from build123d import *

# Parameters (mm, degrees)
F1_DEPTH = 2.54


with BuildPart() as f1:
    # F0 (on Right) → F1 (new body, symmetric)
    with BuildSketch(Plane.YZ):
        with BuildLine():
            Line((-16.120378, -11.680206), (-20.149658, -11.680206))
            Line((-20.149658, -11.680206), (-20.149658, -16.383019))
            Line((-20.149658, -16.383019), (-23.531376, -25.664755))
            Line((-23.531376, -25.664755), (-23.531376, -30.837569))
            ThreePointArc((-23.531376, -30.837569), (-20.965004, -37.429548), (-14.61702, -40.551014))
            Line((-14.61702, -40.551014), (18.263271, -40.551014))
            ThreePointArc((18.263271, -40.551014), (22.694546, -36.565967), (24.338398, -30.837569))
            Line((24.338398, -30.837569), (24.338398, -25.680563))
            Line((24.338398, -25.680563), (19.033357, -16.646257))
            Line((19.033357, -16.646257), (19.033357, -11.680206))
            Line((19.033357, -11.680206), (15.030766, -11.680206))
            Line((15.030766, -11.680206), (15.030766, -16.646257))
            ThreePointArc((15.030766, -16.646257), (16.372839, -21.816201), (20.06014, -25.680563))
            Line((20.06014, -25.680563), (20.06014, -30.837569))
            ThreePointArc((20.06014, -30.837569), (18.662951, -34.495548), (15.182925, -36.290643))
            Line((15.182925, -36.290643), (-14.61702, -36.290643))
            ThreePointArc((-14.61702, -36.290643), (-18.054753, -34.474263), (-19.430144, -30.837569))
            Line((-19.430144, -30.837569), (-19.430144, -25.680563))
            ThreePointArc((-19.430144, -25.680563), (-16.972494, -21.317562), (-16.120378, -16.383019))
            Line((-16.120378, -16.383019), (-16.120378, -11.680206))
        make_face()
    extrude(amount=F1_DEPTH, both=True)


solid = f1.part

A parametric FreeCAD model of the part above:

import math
import FreeCAD as App
import Part
import Sketcher

V = App.Vector
Q = App.Units.Quantity

doc = App.newDocument("Part")
body = doc.addObject("PartDesign::Body", "Body")

# Sketch on YZ plane
sketch1 = body.newObject("Sketcher::SketchObject", "Sketch")
sketch1.AttachmentSupport = (doc.getObject("YZ_Plane"), [""])
sketch1.MapMode = "FlatFace"
sketch1.addGeometry(Part.LineSegment(V(-16.1, -11.7, 0), V(-20.1, -11.7, 0)), False)
sketch1.addGeometry(Part.LineSegment(V(-20.1, -11.7, 0), V(-20.1, -16.4, 0)), False)
sketch1.addGeometry(Part.LineSegment(V(-20.1, -16.4, 0), V(-23.5, -25.7, 0)), False)
sketch1.addGeometry(Part.LineSegment(V(-23.5, -25.7, 0), V(-23.5, -30.8, 0)), False)
sketch1.addGeometry(Part.ArcOfCircle(Part.Circle(V(-13.8, -30.8, 0), V(0, 0, 1), 9.7), math.radians(-180), math.radians(-95)), False)
sketch1.addGeometry(Part.LineSegment(V(-14.6, -40.6, 0), V(18.3, -40.6, 0)), False)
sketch1.addGeometry(Part.ArcOfCircle(Part.Circle(V(13.5, -30.8, 0), V(0, 0, 1), 10.8), math.radians(-64), math.radians(0)), False)
sketch1.addGeometry(Part.LineSegment(V(24.3, -30.8, 0), V(24.3, -25.7, 0)), False)
sketch1.addGeometry(Part.LineSegment(V(24.3, -25.7, 0), V(19, -16.6, 0)), False)
sketch1.addGeometry(Part.LineSegment(V(19, -16.6, 0), V(19, -11.7, 0)), False)
sketch1.addGeometry(Part.LineSegment(V(19, -11.7, 0), V(15, -11.7, 0)), False)
sketch1.addGeometry(Part.LineSegment(V(15, -11.7, 0), V(15, -16.6, 0)), False)
sketch1.addGeometry(Part.ArcOfCircle(Part.Circle(V(25.7, -16.6, 0), V(0, 0, 1), 10.6), math.radians(-180), math.radians(-122)), False)
sketch1.addGeometry(Part.LineSegment(V(20.1, -25.7, 0), V(20.1, -30.8, 0)), False)
sketch1.addGeometry(Part.ArcOfCircle(Part.Circle(V(14.6, -30.8, 0), V(0, 0, 1), 5.5), math.radians(-84), math.radians(0)), False)
sketch1.addGeometry(Part.LineSegment(V(15.2, -36.3, 0), V(-14.6, -36.3, 0)), False)
sketch1.addGeometry(Part.ArcOfCircle(Part.Circle(V(-13.9, -30.8, 0), V(0, 0, 1), 5.5), math.radians(-180), math.radians(-97)), False)
sketch1.addGeometry(Part.LineSegment(V(-19.4, -30.8, 0), V(-19.4, -25.7, 0)), False)
sketch1.addGeometry(Part.ArcOfCircle(Part.Circle(V(-30.8, -16.4, 0), V(0, 0, 1), 14.7), math.radians(-39), math.radians(0)), False)
sketch1.addGeometry(Part.LineSegment(V(-16.1, -16.4, 0), V(-16.1, -11.7, 0)), False)
sketch1.addConstraint(Sketcher.Constraint("Coincident", 0, 2, 1, 1))
sketch1.addConstraint(Sketcher.Constraint("Coincident", 1, 2, 2, 1))
sketch1.addConstraint(Sketcher.Constraint("Coincident", 2, 2, 3, 1))
sketch1.addConstraint(Sketcher.Constraint("Tangent", 3, 2, 4, 1))
sketch1.addConstraint(Sketcher.Constraint("Coincident", 4, 2, 5, 1))
sketch1.addConstraint(Sketcher.Constraint("Coincident", 5, 2, 6, 1))
sketch1.addConstraint(Sketcher.Constraint("Tangent", 6, 2, 7, 1))
sketch1.addConstraint(Sketcher.Constraint("Coincident", 7, 2, 8, 1))
sketch1.addConstraint(Sketcher.Constraint("Coincident", 8, 2, 9, 1))
sketch1.addConstraint(Sketcher.Constraint("Coincident", 9, 2, 10, 1))
sketch1.addConstraint(Sketcher.Constraint("Coincident", 10, 2, 11, 1))
sketch1.addConstraint(Sketcher.Constraint("Tangent", 11, 2, 12, 1))
sketch1.addConstraint(Sketcher.Constraint("Coincident", 12, 2, 13, 1))
sketch1.addConstraint(Sketcher.Constraint("Tangent", 13, 2, 14, 2))
sketch1.addConstraint(Sketcher.Constraint("Coincident", 14, 1, 15, 1))
sketch1.addConstraint(Sketcher.Constraint("Coincident", 15, 2, 16, 2))
sketch1.addConstraint(Sketcher.Constraint("Tangent", 16, 1, 17, 1))
sketch1.addConstraint(Sketcher.Constraint("Coincident", 17, 2, 18, 1))
sketch1.addConstraint(Sketcher.Constraint("Tangent", 18, 2, 19, 1))
sketch1.addConstraint(Sketcher.Constraint("Coincident", 19, 2, 0, 1))
sketch1.addConstraint(Sketcher.Constraint("Horizontal", 0))
sketch1.addConstraint(Sketcher.Constraint("Vertical", 1))
sketch1.addConstraint(Sketcher.Constraint("Vertical", 3))
sketch1.addConstraint(Sketcher.Constraint("Horizontal", 5))
sketch1.addConstraint(Sketcher.Constraint("Vertical", 7))
sketch1.addConstraint(Sketcher.Constraint("Vertical", 9))
sketch1.addConstraint(Sketcher.Constraint("Horizontal", 10))
sketch1.addConstraint(Sketcher.Constraint("Vertical", 11))
sketch1.addConstraint(Sketcher.Constraint("Vertical", 13))
sketch1.addConstraint(Sketcher.Constraint("Horizontal", 15))
sketch1.addConstraint(Sketcher.Constraint("Vertical", 17))
sketch1.addConstraint(Sketcher.Constraint("Vertical", 19))
sketch1.addConstraint(Sketcher.Constraint("Horizontal", 4, 3, 6, 3))
sketch1.addConstraint(Sketcher.Constraint("Horizontal", 6, 3, 14, 3))
sketch1.addConstraint(Sketcher.Constraint("Horizontal", 14, 3, 16, 3))
sketch1.addConstraint(Sketcher.Constraint("Horizontal", 12, 3, 8, 2))
sketch1.addConstraint(Sketcher.Constraint("Horizontal", 0, 2, 9, 2))
sketch1.addConstraint(Sketcher.Constraint("Horizontal", 7, 2, 12, 2))
sketch1.addConstraint(Sketcher.Constraint("Horizontal", 12, 2, 17, 2))
sketch1.addConstraint(Sketcher.Constraint("Horizontal", 1, 2, 18, 2))
sketch1.addConstraint(Sketcher.Constraint("Vertical", 4, 2, 15, 2))
sketch1.addConstraint(Sketcher.Constraint("Radius", 4, 9.749261))
sketch1.addConstraint(Sketcher.Constraint("Radius", 14, 5.48707))
sketch1.addConstraint(Sketcher.Constraint("Radius", 16, 5.495618))
sketch1.addConstraint(Sketcher.Constraint("Radius", 18, 14.713871))
sketch1.addConstraint(Sketcher.Constraint("Radius", 6, 10.802917))
sketch1.addConstraint(Sketcher.Constraint("Radius", 12, 10.628887))
sketch1.addConstraint(Sketcher.Constraint("DistanceX", 0, 2, 0, 1, 4.02928))
sketch1.addConstraint(Sketcher.Constraint("DistanceX", 5, 1, 5, 2, 32.880291))
sketch1.addConstraint(Sketcher.Constraint("DistanceX", 10, 2, 10, 1, 4.002591))
sketch1.addConstraint(Sketcher.Constraint("DistanceY", 9, 1, 9, 2, 4.966051))
sketch1.addConstraint(Sketcher.Constraint("DistanceX", -1, 1, 7, 2, 24.338398))
sketch1.addConstraint(Sketcher.Constraint("DistanceX", 18, 3, 12, 3, 56.493901))
sketch1.addConstraint(Sketcher.Constraint("DistanceX", 14, 3, 5, 2, 3.690201))
sketch1.addConstraint(Sketcher.Constraint("DistanceX", 15, 2, 15, 1, 29.799945))
sketch1.addConstraint(Sketcher.Constraint("DistanceY", 1, 2, 1, 1, 4.702813))
sketch1.addConstraint(Sketcher.Constraint("DistanceY", 3, 2, 3, 1, 5.172814))
sketch1.addConstraint(Sketcher.Constraint("DistanceY", 7, 1, 7, 2, 5.157006))
sketch1.addConstraint(Sketcher.Constraint("DistanceY", 4, 3, -1, 1, 30.837568))
sketch1.addConstraint(Sketcher.Constraint("DistanceX", -1, 1, 14, 3, 14.57307))
pad1 = body.newObject("PartDesign::Pad", "Pad")
pad1.Profile = sketch1
pad1.Length = Q("0.2 in")
pad1.Midplane = True

doc.recompute()
